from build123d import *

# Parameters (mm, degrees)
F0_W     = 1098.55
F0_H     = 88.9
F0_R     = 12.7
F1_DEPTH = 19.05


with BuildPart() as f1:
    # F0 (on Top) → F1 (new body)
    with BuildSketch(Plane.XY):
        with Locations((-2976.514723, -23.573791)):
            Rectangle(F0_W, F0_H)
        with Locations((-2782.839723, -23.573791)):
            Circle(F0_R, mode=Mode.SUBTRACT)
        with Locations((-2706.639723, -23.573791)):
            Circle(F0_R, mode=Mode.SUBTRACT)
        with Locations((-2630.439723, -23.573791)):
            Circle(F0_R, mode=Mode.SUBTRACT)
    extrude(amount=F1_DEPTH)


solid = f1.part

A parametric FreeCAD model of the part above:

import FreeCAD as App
import Part
import Sketcher
Q = App.Units.Quantity


def add_polygon(sketch, points):
    """Adds a closed chain of lines whose ends are joined by coincident constraints."""
    first, n = sketch.GeometryCount, len(points)
    for a, b in zip(points, points[1:] + points[:1]):
        sketch.addGeometry(Part.LineSegment(App.Vector(*a, 0), App.Vector(*b, 0)), False)
    for i in range(n):
        sketch.addConstraint(Sketcher.Constraint("Coincident", first + i, 2, first + (i + 1) % n, 1))

doc = App.newDocument("Part")
body = doc.addObject("PartDesign::Body", "Body")

# Sketch on XY plane
sketch1 = body.newObject("Sketcher::SketchObject", "Sketch")
sketch1.AttachmentSupport = (doc.getObject("XY_Plane"), [""])
sketch1.MapMode = "FlatFace"
add_polygon(sketch1, [(-3526, 21), (-3526, -68), (-2427, -68), (-2427, 21)])  # lines 0-3
sketch1.addGeometry(Part.Circle(App.Vector(-2783, -24, 0), App.Vector(0, 0, 1), 13), False)  # 4
sketch1.addGeometry(Part.Circle(App.Vector(-2707, -24, 0), App.Vector(0, 0, 1), 13), False)  # 5
sketch1.addGeometry(Part.Circle(App.Vector(-2630, -24, 0), App.Vector(0, 0, 1), 13), False)  # 6
sketch1.addConstraint(Sketcher.Constraint("Vertical", 0))
sketch1.addConstraint(Sketcher.Constraint("Horizontal", 1))
sketch1.addConstraint(Sketcher.Constraint("Vertical", 2))
sketch1.addConstraint(Sketcher.Constraint("Horizontal", 3))
sketch1.addConstraint(Sketcher.Constraint("Equal", 4, 5))
sketch1.addConstraint(Sketcher.Constraint("Equal", 5, 6))
sketch1.addConstraint(Sketcher.Constraint("Horizontal", 4, 3, 5, 3))
sketch1.addConstraint(Sketcher.Constraint("Horizontal", 5, 3, 6, 3))
sketch1.addConstraint(Sketcher.Constraint("Diameter", 4, Q("1 in")))
sketch1.addConstraint(Sketcher.Constraint("DistanceY", 0, 2, 0, 1, Q("3.5 in")))
sketch1.addConstraint(Sketcher.Constraint("DistanceX", 4, 3, 5, 3, Q("3 in")))
sketch1.addConstraint(Sketcher.Constraint("DistanceX", 5, 3, 6, 3, Q("3 in")))
sketch1.addConstraint(Sketcher.Constraint("DistanceX", 6, 3, 1, 2, Q("8 in")))
sketch1.addConstraint(Sketcher.Constraint("DistanceX", 1, 1, 1, 2, Q("43.25 in")))
sketch1.addConstraint(Sketcher.Constraint("DistanceY", 0, 2, 4, 3, Q("1.75 in")))
sketch1.addConstraint(Sketcher.Constraint("DistanceY", 4, 3, -1, 1, Q("23.573791 mm")))
sketch1.addConstraint(Sketcher.Constraint("DistanceX", 4, 3, -1, 1, Q("2782.839723 mm")))
pad1 = body.newObject("PartDesign::Pad", "Pad")
pad1.Profile = sketch1
pad1.Length = Q("0.75 in")

doc.recompute()
